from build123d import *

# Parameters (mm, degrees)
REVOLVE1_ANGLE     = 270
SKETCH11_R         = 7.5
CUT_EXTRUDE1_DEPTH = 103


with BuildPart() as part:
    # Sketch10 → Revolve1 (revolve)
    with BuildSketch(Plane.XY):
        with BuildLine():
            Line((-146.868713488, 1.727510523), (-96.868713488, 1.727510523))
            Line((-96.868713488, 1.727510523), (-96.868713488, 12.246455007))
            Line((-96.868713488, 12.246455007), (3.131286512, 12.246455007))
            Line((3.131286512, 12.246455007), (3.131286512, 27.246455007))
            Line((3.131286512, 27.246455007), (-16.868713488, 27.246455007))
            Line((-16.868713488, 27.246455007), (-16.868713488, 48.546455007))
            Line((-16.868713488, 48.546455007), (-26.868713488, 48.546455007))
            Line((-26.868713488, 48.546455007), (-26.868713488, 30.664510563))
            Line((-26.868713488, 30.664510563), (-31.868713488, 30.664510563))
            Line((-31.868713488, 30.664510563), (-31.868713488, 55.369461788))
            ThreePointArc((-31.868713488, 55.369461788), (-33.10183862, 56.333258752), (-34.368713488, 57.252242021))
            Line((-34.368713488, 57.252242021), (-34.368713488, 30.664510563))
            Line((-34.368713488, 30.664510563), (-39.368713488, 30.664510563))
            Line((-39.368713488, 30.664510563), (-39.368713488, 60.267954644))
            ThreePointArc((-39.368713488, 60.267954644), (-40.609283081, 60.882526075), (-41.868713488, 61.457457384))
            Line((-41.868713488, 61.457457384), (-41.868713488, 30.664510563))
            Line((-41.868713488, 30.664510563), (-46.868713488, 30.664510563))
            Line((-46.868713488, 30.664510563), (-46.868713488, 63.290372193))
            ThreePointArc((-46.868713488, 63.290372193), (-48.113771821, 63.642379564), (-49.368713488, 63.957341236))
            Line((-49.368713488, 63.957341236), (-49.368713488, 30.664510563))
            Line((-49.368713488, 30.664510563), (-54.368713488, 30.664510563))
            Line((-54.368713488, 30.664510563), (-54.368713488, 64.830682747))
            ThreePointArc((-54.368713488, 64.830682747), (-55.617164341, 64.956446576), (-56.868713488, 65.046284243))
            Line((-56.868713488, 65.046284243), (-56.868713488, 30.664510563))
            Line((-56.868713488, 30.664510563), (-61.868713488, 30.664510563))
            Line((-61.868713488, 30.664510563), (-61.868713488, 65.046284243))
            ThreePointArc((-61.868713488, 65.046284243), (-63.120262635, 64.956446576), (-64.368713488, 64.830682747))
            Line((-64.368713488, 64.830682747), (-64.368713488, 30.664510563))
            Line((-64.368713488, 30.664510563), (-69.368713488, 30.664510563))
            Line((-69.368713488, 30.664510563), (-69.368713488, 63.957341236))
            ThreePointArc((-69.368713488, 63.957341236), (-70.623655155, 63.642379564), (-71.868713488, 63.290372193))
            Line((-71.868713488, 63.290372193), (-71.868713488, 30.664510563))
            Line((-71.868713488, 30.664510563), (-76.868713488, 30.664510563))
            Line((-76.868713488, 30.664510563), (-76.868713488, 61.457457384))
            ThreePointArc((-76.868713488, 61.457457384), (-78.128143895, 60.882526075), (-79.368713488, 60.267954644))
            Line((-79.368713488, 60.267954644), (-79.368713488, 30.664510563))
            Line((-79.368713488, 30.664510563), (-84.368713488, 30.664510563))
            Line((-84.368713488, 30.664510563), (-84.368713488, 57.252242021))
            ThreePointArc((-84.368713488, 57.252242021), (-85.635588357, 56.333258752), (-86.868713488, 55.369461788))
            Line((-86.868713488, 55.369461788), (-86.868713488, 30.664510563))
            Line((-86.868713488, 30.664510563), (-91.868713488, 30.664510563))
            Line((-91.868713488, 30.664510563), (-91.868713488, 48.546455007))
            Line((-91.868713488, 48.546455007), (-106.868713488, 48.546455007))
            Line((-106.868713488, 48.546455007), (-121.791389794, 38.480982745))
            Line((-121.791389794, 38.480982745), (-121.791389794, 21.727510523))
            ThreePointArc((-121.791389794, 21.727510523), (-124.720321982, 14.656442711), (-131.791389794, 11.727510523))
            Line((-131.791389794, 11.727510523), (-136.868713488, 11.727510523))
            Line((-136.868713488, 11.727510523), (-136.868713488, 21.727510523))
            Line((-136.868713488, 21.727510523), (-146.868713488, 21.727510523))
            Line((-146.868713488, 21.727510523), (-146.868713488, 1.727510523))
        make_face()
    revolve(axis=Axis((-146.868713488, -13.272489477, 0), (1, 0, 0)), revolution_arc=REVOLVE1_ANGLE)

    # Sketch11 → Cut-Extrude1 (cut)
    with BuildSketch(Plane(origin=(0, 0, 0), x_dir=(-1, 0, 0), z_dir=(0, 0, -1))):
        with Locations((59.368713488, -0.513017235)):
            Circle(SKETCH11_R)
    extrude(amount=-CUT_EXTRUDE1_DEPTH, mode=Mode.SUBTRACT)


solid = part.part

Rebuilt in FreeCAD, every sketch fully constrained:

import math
import FreeCAD as App
import Part
import Sketcher
from FreeCAD import Vector
Q = App.Units.Quantity

doc = App.newDocument("Part")
params = doc.addObject("Spreadsheet::Sheet", "Params")
for row, (alias, value) in enumerate([
    ("sketch1_radius", "10 mm"),
    ("sketch1_width", "50 mm"),
    ("sketch1_width2", "100 mm"),
    ("sketch1_width3", "20 mm"),
    ("sketch1_width4", "5 mm"),
    ("revolution_angle", "270 deg"),
    ("sketch2_diameter", "15 mm"),
    ("pocket1_length", "103 mm"),
], start=1):
    params.set(f"A{row}", alias)
    params.set(f"B{row}", "=" + value)
    params.setAlias(f"B{row}", alias)

body = doc.addObject("PartDesign::Body", "Body")

# Sketch on XY plane
sketch1 = doc.addObject("Sketcher::SketchObject", "Sketch")
body.addObject(sketch1)
sketch1.AttachmentSupport = (doc.XY_Plane, [""])
sketch1.MapMode = "FlatFace"
sketch1.addGeometry([
    Part.LineSegment(Vector(-146.9, 1.7, 0), Vector(-96.9, 1.7, 0)),  # 0
    Part.LineSegment(Vector(-96.9, 1.7, 0), Vector(-96.9, 12.2, 0)),  # 1
    Part.LineSegment(Vector(-96.9, 12.2, 0), Vector(3.1, 12.2, 0)),  # 2
    Part.LineSegment(Vector(3.1, 12.2, 0), Vector(3.1, 27.2, 0)),  # 3
    Part.LineSegment(Vector(3.1, 27.2, 0), Vector(-16.9, 27.2, 0)),  # 4
    Part.LineSegment(Vector(-16.9, 27.2, 0), Vector(-16.9, 48.5, 0)),  # 5
    Part.LineSegment(Vector(-16.9, 48.5, 0), Vector(-26.9, 48.5, 0)),  # 6
    Part.LineSegment(Vector(-26.9, 48.5, 0), Vector(-26.9, 30.7, 0)),  # 7
    Part.LineSegment(Vector(-26.9, 30.7, 0), Vector(-31.9, 30.7, 0)),  # 8
    Part.LineSegment(Vector(-31.9, 30.7, 0), Vector(-31.9, 55.4, 0)),  # 9
    Part.ArcOfCircle(Part.Circle(Vector(-59.4, 21.5, 0), Vector(0, 0, 1), 43.7), math.radians(50.96), math.radians(55.07)),  # 10
    Part.LineSegment(Vector(-34.4, 57.3, 0), Vector(-34.4, 30.7, 0)),  # 11
    Part.LineSegment(Vector(-34.4, 30.7, 0), Vector(-39.4, 30.7, 0)),  # 12
    Part.LineSegment(Vector(-39.4, 30.7, 0), Vector(-39.4, 60.3, 0)),  # 13
    Part.ArcOfCircle(Part.Circle(Vector(-59.4, 21.5, 0), Vector(0, 0, 1), 43.7), math.radians(62.74), math.radians(66.37)),  # 14
    Part.LineSegment(Vector(-41.9, 61.5, 0), Vector(-41.9, 30.7, 0)),  # 15
    Part.LineSegment(Vector(-41.9, 30.7, 0), Vector(-46.9, 30.7, 0)),  # 16
    Part.LineSegment(Vector(-46.9, 30.7, 0), Vector(-46.9, 63.3, 0)),  # 17
    Part.ArcOfCircle(Part.Circle(Vector(-59.4, 21.5, 0), Vector(0, 0, 1), 43.7), math.radians(73.36), math.radians(76.76)),  # 18
    Part.LineSegment(Vector(-49.4, 64, 0), Vector(-49.4, 30.7, 0)),  # 19
    Part.LineSegment(Vector(-49.4, 30.7, 0), Vector(-54.4, 30.7, 0)),  # 20
    Part.LineSegment(Vector(-54.4, 30.7, 0), Vector(-54.4, 64.8, 0)),  # 21
    Part.ArcOfCircle(Part.Circle(Vector(-59.4, 21.5, 0), Vector(0, 0, 1), 43.7), math.radians(83.42), math.radians(86.72)),  # 22
    Part.LineSegment(Vector(-56.9, 65, 0), Vector(-56.9, 30.7, 0)),  # 23
    Part.LineSegment(Vector(-56.9, 30.7, 0), Vector(-61.9, 30.7, 0)),  # 24
    Part.LineSegment(Vector(-61.9, 30.7, 0), Vector(-61.9, 65, 0)),  # 25
    Part.ArcOfCircle(Part.Circle(Vector(-59.4, 21.5, 0), Vector(0, 0, 1), 43.7), math.radians(93.28), math.radians(96.58)),  # 26
    Part.LineSegment(Vector(-64.4, 64.8, 0), Vector(-64.4, 30.7, 0)),  # 27
    Part.LineSegment(Vector(-64.4, 30.7, 0), Vector(-69.4, 30.7, 0)),  # 28
    Part.LineSegment(Vector(-69.4, 30.7, 0), Vector(-69.4, 64, 0)),  # 29
    Part.ArcOfCircle(Part.Circle(Vector(-59.4, 21.5, 0), Vector(0, 0, 1), 43.7), math.radians(103.24), math.radians(106.64)),  # 30
    Part.LineSegment(Vector(-71.9, 63.3, 0), Vector(-71.9, 30.7, 0)),  # 31
    Part.LineSegment(Vector(-71.9, 30.7, 0), Vector(-76.9, 30.7, 0)),  # 32
    Part.LineSegment(Vector(-76.9, 30.7, 0), Vector(-76.9, 61.5, 0)),  # 33
    Part.ArcOfCircle(Part.Circle(Vector(-59.4, 21.5, 0), Vector(0, 0, 1), 43.7), math.radians(113.63), math.radians(117.26)),  # 34
    Part.LineSegment(Vector(-79.4, 60.3, 0), Vector(-79.4, 30.7, 0)),  # 35
    Part.LineSegment(Vector(-79.4, 30.7, 0), Vector(-84.4, 30.7, 0)),  # 36
    Part.LineSegment(Vector(-84.4, 30.7, 0), Vector(-84.4, 57.3, 0)),  # 37
    Part.ArcOfCircle(Part.Circle(Vector(-59.4, 21.5, 0), Vector(0, 0, 1), 43.7), math.radians(124.93), math.radians(129.04)),  # 38
    Part.LineSegment(Vector(-86.9, 55.4, 0), Vector(-86.9, 30.7, 0)),  # 39
    Part.LineSegment(Vector(-86.9, 30.7, 0), Vector(-91.9, 30.7, 0)),  # 40
    Part.LineSegment(Vector(-91.9, 30.7, 0), Vector(-91.9, 48.5, 0)),  # 41
    Part.LineSegment(Vector(-91.9, 48.5, 0), Vector(-106.9, 48.5, 0)),  # 42
    Part.LineSegment(Vector(-106.9, 48.5, 0), Vector(-121.8, 38.5, 0)),  # 43
    Part.LineSegment(Vector(-121.8, 38.5, 0), Vector(-121.8, 21.7, 0)),  # 44
    Part.ArcOfCircle(Part.Circle(Vector(-131.8, 21.7, 0), Vector(0, 0, 1), 10), math.radians(-90), math.radians(0)),  # 45
    Part.LineSegment(Vector(-131.8, 11.7, 0), Vector(-136.9, 11.7, 0)),  # 46
    Part.LineSegment(Vector(-136.9, 11.7, 0), Vector(-136.9, 21.7, 0)),  # 47
    Part.LineSegment(Vector(-136.9, 21.7, 0), Vector(-146.9, 21.7, 0)),  # 48
    Part.LineSegment(Vector(-146.9, 21.7, 0), Vector(-146.9, 1.7, 0)),  # 49
], False)
sketch1.addGeometry(Part.LineSegment(Vector(-146.9, -13.3, 0), Vector(3.1, -13.3, 0)), True)  # axis
sketch1.addConstraint([
    Sketcher.Constraint("Coincident", 0, 2, 1, 1),
    Sketcher.Constraint("Coincident", 1, 2, 2, 1),
    Sketcher.Constraint("Coincident", 2, 2, 3, 1),
    Sketcher.Constraint("Coincident", 3, 2, 4, 1),
    Sketcher.Constraint("Coincident", 4, 2, 5, 1),
    Sketcher.Constraint("Coincident", 5, 2, 6, 1),
    Sketcher.Constraint("Coincident", 6, 2, 7, 1),
    Sketcher.Constraint("Coincident", 7, 2, 8, 1),
    Sketcher.Constraint("Coincident", 8, 2, 9, 1),
    Sketcher.Constraint("Coincident", 9, 2, 10, 1),
    Sketcher.Constraint("Coincident", 10, 2, 11, 1),
    Sketcher.Constraint("Coincident", 11, 2, 12, 1),
    Sketcher.Constraint("Coincident", 12, 2, 13, 1),
    Sketcher.Constraint("Coincident", 13, 2, 14, 1),
    Sketcher.Constraint("Coincident", 14, 2, 15, 1),
    Sketcher.Constraint("Coincident", 15, 2, 16, 1),
    Sketcher.Constraint("Coincident", 16, 2, 17, 1),
    Sketcher.Constraint("Coincident", 17, 2, 18, 1),
    Sketcher.Constraint("Coincident", 18, 2, 19, 1),
    Sketcher.Constraint("Coincident", 19, 2, 20, 1),
    Sketcher.Constraint("Coincident", 20, 2, 21, 1),
    Sketcher.Constraint("Coincident", 21, 2, 22, 1),
    Sketcher.Constraint("Coincident", 22, 2, 23, 1),
    Sketcher.Constraint("Coincident", 23, 2, 24, 1),
    Sketcher.Constraint("Coincident", 24, 2, 25, 1),
    Sketcher.Constraint("Coincident", 25, 2, 26, 1),
    Sketcher.Constraint("Coincident", 26, 2, 27, 1),
    Sketcher.Constraint("Coincident", 27, 2, 28, 1),
    Sketcher.Constraint("Coincident", 28, 2, 29, 1),
    Sketcher.Constraint("Coincident", 29, 2, 30, 1),
    Sketcher.Constraint("Coincident", 30, 2, 31, 1),
    Sketcher.Constraint("Coincident", 31, 2, 32, 1),
    Sketcher.Constraint("Coincident", 32, 2, 33, 1),
    Sketcher.Constraint("Coincident", 33, 2, 34, 1),
    Sketcher.Constraint("Coincident", 34, 2, 35, 1),
    Sketcher.Constraint("Coincident", 35, 2, 36, 1),
    Sketcher.Constraint("Coincident", 36, 2, 37, 1),
    Sketcher.Constraint("Coincident", 37, 2, 38, 1),
    Sketcher.Constraint("Coincident", 38, 2, 39, 1),
    Sketcher.Constraint("Coincident", 39, 2, 40, 1),
    Sketcher.Constraint("Coincident", 40, 2, 41, 1),
    Sketcher.Constraint("Coincident", 41, 2, 42, 1),
    Sketcher.Constraint("Coincident", 42, 2, 43, 1),
    Sketcher.Constraint("Coincident", 43, 2, 44, 1),
    Sketcher.Constraint("Tangent", 44, 2, 45, 2),
    Sketcher.Constraint("Tangent", 45, 1, 46, 1),
    Sketcher.Constraint("Coincident", 46, 2, 47, 1),
    Sketcher.Constraint("Coincident", 47, 2, 48, 1),
    Sketcher.Constraint("Coincident", 48, 2, 49, 1),
    Sketcher.Constraint("Coincident", 49, 2, 0, 1),
    Sketcher.Constraint("Horizontal", 0),
    Sketcher.Constraint("Vertical", 1),
    Sketcher.Constraint("Horizontal", 2),
    Sketcher.Constraint("Vertical", 3),
    Sketcher.Constraint("Horizontal", 4),
    Sketcher.Constraint("Vertical", 5),
    Sketcher.Constraint("Horizontal", 6),
    Sketcher.Constraint("Vertical", 7),
    Sketcher.Constraint("Horizontal", 8),
    Sketcher.Constraint("Vertical", 9),
    Sketcher.Constraint("Vertical", 11),
    Sketcher.Constraint("Horizontal", 12),
    Sketcher.Constraint("Vertical", 13),
    Sketcher.Constraint("Vertical", 15),
    Sketcher.Constraint("Horizontal", 16),
    Sketcher.Constraint("Vertical", 17),
    Sketcher.Constraint("Vertical", 19),
    Sketcher.Constraint("Horizontal", 20),
    Sketcher.Constraint("Vertical", 21),
    Sketcher.Constraint("Vertical", 23),
    Sketcher.Constraint("Horizontal", 24),
    Sketcher.Constraint("Vertical", 25),
    Sketcher.Constraint("Vertical", 27),
    Sketcher.Constraint("Horizontal", 28),
    Sketcher.Constraint("Vertical", 29),
    Sketcher.Constraint("Vertical", 31),
    Sketcher.Constraint("Horizontal", 32),
    Sketcher.Constraint("Vertical", 33),
    Sketcher.Constraint("Vertical", 35),
    Sketcher.Constraint("Horizontal", 36),
    Sketcher.Constraint("Vertical", 37),
    Sketcher.Constraint("Vertical", 39),
    Sketcher.Constraint("Horizontal", 40),
    Sketcher.Constraint("Vertical", 41),
    Sketcher.Constraint("Horizontal", 42),
    Sketcher.Constraint("Vertical", 44),
    Sketcher.Constraint("Horizontal", 46),
    Sketcher.Constraint("Vertical", 47),
    Sketcher.Constraint("Horizontal", 48),
    Sketcher.Constraint("Vertical", 49),
    Sketcher.Constraint("Horizontal", 50),
    Sketcher.Constraint("Coincident", 14, 3, 10, 3),
    Sketcher.Constraint("Coincident", 18, 3, 10, 3),
    Sketcher.Constraint("Coincident", 22, 3, 10, 3),
    Sketcher.Constraint("Coincident", 26, 3, 10, 3),
    Sketcher.Constraint("Coincident", 30, 3, 10, 3),
    Sketcher.Constraint("Coincident", 34, 3, 10, 3),
    Sketcher.Constraint("Coincident", 38, 3, 10, 3),
    Sketcher.Constraint("Equal", 10, 14),
    Sketcher.Constraint("Equal", 14, 18),
    Sketcher.Constraint("Equal", 18, 22),
    Sketcher.Constraint("Equal", 22, 26),
    Sketcher.Constraint("Equal", 26, 30),
    Sketcher.Constraint("Equal", 30, 34),
    Sketcher.Constraint("Equal", 34, 38),
    Sketcher.Constraint("Horizontal", 8, 2, 11, 2),
    Sketcher.Constraint("Horizontal", 12, 2, 15, 2),
    Sketcher.Constraint("Horizontal", 16, 2, 19, 2),
    Sketcher.Constraint("Horizontal", 20, 2, 23, 2),
    Sketcher.Constraint("Horizontal", 22, 2, 25, 2),
    Sketcher.Constraint("Horizontal", 21, 2, 26, 2),
    Sketcher.Constraint("Horizontal", 24, 2, 27, 2),
    Sketcher.Constraint("Horizontal", 18, 2, 29, 2),
    Sketcher.Constraint("Horizontal", 17, 2, 30, 2),
    Sketcher.Constraint("Horizontal", 28, 2, 31, 2),
    Sketcher.Constraint("Horizontal", 14, 2, 33, 2),
    Sketcher.Constraint("Horizontal", 13, 2, 34, 2),
    Sketcher.Constraint("Horizontal", 32, 2, 35, 2),
    Sketcher.Constraint("Horizontal", 10, 2, 37, 2),
    Sketcher.Constraint("Horizontal", 9, 2, 38, 2),
    Sketcher.Constraint("Horizontal", 36, 2, 39, 2),
    Sketcher.Constraint("Horizontal", 6, 2, 41, 2),
    Sketcher.Constraint("Horizontal", 44, 2, 47, 2),
    Sketcher.Constraint("Vertical", 49, 2, 50, 1),
    Sketcher.Constraint("Vertical", 3, 2, 50, 2),
    Sketcher.Constraint("Equal", 8, 12),
    Sketcher.Constraint("Equal", 12, 16),
    Sketcher.Constraint("Equal", 16, 20),
    Sketcher.Constraint("Equal", 20, 24),
    Sketcher.Constraint("Equal", 36, 40),
    Sketcher.Constraint("Equal", 6, 48),
    Sketcher.Constraint("Equal", 42, 3),
    Sketcher.Constraint("Equal", 48, 47),
    Sketcher.Constraint("Equal", 4, 49),
    Sketcher.Constraint("Radius", 45, 10.0),
    Sketcher.Constraint("DistanceX", 0, 1, 0, 2, 50.0),
    Sketcher.Constraint("DistanceX", 2, 1, 2, 2, 100.0),
    Sketcher.Constraint("DistanceX", 4, 2, 4, 1, 20.0),
    Sketcher.Constraint("DistanceX", 8, 2, 8, 1, 5.0),
    Sketcher.Constraint("DistanceX", 42, 2, 42, 1, 15.0),
    Sketcher.Constraint("Angle", 43, Q("-146 deg")),
    Sketcher.Constraint("Distance", 43, 18.0),
    Sketcher.Constraint("DistanceY", 5, 1, 5, 2, 21.3),
    Sketcher.Constraint("Radius", 10, 43.662433),
    Sketcher.Constraint("DistanceY", 9, 1, 9, 2, 24.704951),
    Sketcher.Constraint("DistanceY", 11, 2, 11, 1, 26.587731),
    Sketcher.Constraint("DistanceY", 17, 1, 17, 2, 32.625862),
    Sketcher.Constraint("DistanceY", 19, 2, 19, 1, 33.292831),
    Sketcher.Constraint("DistanceX", 46, 2, 46, 1, 5.077324),
    Sketcher.Constraint("DistanceY", 1, 1, 1, 2, 10.518944),
    Sketcher.Constraint("DistanceY", 7, 2, 7, 1, 17.881944),
    Sketcher.Constraint("DistanceY", -1, 1, 10, 3, 21.455482),
    Sketcher.Constraint("DistanceX", 45, 3, -1, 1, 131.79139),
    Sketcher.Constraint("DistanceY", 50, 1, -1, 1, 13.272489),
])
sketch1.setExpression("Constraints[134]", "Params.sketch1_radius")
sketch1.setExpression("Constraints[135]", "Params.sketch1_width")
sketch1.setExpression("Constraints[136]", "Params.sketch1_width2")
sketch1.setExpression("Constraints[137]", "Params.sketch1_width3")
sketch1.setExpression("Constraints[138]", "Params.sketch1_width4")
revolution = doc.addObject("PartDesign::Revolution", "Revolution")
body.addObject(revolution)
revolution.Profile = sketch1
revolution.ReferenceAxis = (sketch1, ["Axis0"])
revolution.setExpression("Angle", "Params.revolution_angle")

# Sketch on XY plane
sketch2 = doc.addObject("Sketcher::SketchObject", "Sketch001")
body.addObject(sketch2)
sketch2.AttachmentSupport = (doc.XY_Plane, [""])
sketch2.MapMode = "FlatFace"
sketch2.addGeometry(Part.Circle(Vector(-59, -1, 0), Vector(0, 0, 1), 8), False)
sketch2.addConstraint([
    Sketcher.Constraint("Diameter", 0, 15.0),
    Sketcher.Constraint("DistanceX", 0, 3, -1, 1, 59.368713),
    Sketcher.Constraint("DistanceY", 0, 3, -1, 1, 0.513017),
])
sketch2.setExpression("Constraints[0]", "Params.sketch2_diameter")
pocket1 = doc.addObject("PartDesign::Pocket", "Pocket")
body.addObject(pocket1)
pocket1.Profile = sketch2
pocket1.setExpression("Length", "Params.pocket1_length")
pocket1.Reversed = True

doc.recompute()
